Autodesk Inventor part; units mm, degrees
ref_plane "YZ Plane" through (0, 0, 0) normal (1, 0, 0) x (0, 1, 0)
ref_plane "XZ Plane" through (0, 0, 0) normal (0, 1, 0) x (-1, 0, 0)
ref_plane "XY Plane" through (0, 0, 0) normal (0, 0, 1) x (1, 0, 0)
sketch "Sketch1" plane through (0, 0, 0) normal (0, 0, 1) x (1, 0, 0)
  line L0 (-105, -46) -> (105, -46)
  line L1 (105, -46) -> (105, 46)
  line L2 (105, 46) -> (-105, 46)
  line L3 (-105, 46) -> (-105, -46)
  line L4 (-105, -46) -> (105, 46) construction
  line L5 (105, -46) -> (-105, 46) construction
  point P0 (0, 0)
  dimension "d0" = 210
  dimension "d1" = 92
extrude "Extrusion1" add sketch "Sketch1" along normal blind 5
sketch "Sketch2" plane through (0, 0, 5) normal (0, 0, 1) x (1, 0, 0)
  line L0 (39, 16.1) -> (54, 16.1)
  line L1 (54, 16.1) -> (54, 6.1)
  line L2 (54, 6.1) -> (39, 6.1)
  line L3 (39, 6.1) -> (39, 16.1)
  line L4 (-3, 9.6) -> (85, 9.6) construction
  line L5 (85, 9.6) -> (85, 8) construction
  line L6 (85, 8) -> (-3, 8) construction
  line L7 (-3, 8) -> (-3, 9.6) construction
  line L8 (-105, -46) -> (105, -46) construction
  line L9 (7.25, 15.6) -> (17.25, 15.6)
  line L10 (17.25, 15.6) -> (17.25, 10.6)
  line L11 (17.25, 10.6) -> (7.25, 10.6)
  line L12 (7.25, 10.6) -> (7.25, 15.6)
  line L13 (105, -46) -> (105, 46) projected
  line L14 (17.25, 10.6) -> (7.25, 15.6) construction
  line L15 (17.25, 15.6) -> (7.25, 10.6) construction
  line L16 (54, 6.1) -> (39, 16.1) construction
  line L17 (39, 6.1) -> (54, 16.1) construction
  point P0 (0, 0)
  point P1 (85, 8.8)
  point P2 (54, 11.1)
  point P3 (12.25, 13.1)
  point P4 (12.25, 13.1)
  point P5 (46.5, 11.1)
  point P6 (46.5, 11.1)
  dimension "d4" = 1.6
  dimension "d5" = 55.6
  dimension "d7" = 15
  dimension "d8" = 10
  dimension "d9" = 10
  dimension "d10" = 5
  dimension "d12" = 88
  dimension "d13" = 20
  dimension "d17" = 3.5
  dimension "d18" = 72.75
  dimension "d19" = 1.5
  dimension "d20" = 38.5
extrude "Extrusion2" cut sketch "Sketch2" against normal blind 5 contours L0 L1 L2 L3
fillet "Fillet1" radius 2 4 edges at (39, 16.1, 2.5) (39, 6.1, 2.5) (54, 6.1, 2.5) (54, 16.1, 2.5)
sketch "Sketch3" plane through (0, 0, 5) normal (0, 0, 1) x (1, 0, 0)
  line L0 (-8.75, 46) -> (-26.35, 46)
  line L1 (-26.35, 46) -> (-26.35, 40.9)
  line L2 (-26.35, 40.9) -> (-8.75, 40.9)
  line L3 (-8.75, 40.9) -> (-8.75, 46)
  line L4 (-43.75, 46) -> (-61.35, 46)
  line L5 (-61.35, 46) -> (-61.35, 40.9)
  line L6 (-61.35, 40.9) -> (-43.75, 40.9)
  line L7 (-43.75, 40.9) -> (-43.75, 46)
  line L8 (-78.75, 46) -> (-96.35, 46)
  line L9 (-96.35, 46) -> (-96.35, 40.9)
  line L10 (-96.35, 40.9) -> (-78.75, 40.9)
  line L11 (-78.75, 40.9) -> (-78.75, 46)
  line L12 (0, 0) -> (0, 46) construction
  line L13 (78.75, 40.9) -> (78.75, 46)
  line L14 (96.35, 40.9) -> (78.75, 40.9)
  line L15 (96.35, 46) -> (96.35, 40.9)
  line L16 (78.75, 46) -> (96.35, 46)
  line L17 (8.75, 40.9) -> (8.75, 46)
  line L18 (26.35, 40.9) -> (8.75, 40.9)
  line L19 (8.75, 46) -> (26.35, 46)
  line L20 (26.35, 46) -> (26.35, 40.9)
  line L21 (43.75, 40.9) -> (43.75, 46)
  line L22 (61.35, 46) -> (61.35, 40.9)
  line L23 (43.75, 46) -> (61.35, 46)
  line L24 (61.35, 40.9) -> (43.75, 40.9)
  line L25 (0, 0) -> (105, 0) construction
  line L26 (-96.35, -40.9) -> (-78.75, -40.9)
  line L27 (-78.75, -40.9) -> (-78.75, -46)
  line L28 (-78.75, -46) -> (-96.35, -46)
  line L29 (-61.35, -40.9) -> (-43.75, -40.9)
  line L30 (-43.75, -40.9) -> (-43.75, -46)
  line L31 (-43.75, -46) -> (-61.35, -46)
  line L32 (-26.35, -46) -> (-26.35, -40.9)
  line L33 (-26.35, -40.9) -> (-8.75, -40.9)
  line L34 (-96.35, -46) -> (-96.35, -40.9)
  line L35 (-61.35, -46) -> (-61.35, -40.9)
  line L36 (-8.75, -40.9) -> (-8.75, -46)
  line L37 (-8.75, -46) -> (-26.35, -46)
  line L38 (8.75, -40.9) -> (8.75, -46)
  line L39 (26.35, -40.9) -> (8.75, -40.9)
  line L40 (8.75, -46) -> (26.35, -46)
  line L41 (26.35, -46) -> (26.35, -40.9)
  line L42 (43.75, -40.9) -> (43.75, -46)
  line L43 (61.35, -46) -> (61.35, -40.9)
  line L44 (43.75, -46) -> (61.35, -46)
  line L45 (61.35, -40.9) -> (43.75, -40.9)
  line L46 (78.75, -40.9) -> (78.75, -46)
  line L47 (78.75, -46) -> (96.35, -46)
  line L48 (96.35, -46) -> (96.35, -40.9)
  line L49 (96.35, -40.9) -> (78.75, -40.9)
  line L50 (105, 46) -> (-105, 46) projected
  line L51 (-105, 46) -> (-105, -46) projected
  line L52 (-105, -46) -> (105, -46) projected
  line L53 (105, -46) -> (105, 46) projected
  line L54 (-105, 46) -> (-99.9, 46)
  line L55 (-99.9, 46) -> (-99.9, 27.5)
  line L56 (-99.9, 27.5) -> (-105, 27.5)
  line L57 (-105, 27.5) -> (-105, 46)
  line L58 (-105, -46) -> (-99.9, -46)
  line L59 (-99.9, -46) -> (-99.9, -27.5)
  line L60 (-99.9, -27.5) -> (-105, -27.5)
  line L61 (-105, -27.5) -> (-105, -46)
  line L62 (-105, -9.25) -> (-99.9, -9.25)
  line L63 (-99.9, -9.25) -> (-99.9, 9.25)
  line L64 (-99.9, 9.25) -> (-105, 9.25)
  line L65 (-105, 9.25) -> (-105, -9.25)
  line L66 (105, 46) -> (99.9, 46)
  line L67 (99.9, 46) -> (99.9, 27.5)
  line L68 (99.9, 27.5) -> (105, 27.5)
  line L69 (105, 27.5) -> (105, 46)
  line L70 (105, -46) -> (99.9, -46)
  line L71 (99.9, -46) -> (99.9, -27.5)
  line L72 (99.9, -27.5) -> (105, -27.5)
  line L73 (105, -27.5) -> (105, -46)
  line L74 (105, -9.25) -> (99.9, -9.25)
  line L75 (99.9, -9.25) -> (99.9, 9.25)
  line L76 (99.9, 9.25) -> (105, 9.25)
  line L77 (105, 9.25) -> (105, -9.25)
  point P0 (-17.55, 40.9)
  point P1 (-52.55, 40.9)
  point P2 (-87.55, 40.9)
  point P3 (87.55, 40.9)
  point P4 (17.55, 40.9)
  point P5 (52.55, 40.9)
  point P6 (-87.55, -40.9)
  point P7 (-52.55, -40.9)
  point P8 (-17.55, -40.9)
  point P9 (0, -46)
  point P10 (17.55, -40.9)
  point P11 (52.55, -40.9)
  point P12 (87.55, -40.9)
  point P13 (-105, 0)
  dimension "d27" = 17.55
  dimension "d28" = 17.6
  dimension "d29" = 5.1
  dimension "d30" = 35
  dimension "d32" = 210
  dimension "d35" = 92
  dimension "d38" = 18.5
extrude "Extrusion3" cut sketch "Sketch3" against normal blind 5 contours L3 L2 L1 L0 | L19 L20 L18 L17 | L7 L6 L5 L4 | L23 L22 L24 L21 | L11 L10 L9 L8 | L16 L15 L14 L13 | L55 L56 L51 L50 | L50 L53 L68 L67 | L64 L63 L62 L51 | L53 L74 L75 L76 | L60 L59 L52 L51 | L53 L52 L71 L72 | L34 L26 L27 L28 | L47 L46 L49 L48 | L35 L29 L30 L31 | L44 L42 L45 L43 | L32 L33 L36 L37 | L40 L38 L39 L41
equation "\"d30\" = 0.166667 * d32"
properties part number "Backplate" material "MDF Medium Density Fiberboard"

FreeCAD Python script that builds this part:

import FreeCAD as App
import Part
import Sketcher
from FreeCAD import Vector
Q = App.Units.Quantity


def edges_at(feature, points):
    """Names of the edges that pass closest to the given points."""
    edges = feature.Shape.Edges
    near = lambda p: min(range(len(edges)), key=lambda i: edges[i].distToShape(Part.Vertex(*p))[0])
    return sorted({f"Edge{near(p) + 1}" for p in points})

doc = App.newDocument("Part")
body = doc.addObject("PartDesign::Body", "Body")

sketch1 = doc.addObject("Sketcher::SketchObject", "Sketch")
body.addObject(sketch1)
sketch1.AttachmentSupport = (doc.XY_Plane, [""])
sketch1.MapMode = "FlatFace"
sketch1.addGeometry([
    Part.LineSegment(Vector(-105, 46, 0), Vector(-105, -46, 0)),
    Part.LineSegment(Vector(-105, -46, 0), Vector(105, -46, 0)),
    Part.LineSegment(Vector(105, -46, 0), Vector(105, 46, 0)),
    Part.LineSegment(Vector(105, 46, 0), Vector(-105, 46, 0)),
], False)
sketch1.addConstraint([
    Sketcher.Constraint("Coincident", 0, 2, 1, 1),
    Sketcher.Constraint("Coincident", 1, 2, 2, 1),
    Sketcher.Constraint("Coincident", 2, 2, 3, 1),
    Sketcher.Constraint("Coincident", 3, 2, 0, 1),
    Sketcher.Constraint("Vertical", 0),
    Sketcher.Constraint("Horizontal", 1),
    Sketcher.Constraint("Vertical", 2),
    Sketcher.Constraint("Horizontal", 3),
    Sketcher.Constraint("Symmetric", 0, 2, 2, 2, -1, 1),
    Sketcher.Constraint("DistanceX", 1, 1, 1, 2, Q("210 mm")),
    Sketcher.Constraint("DistanceY", 0, 2, 0, 1, Q("92 mm")),
])
pad1 = doc.addObject("PartDesign::Pad", "Pad")
body.addObject(pad1)
pad1.Profile = sketch1
pad1.Length = 5

sketch2 = doc.addObject("Sketcher::SketchObject", "Sketch001")
body.addObject(sketch2)
sketch2.AttachmentSupport = (doc.XY_Plane, [""])
sketch2.MapMode = "FlatFace"
sketch2.AttachmentOffset = App.Placement(Vector(0, 0, 5), App.Rotation())
sketch2.addGeometry([
    Part.LineSegment(Vector(54, 16.1, 0), Vector(39, 16.1, 0)),
    Part.LineSegment(Vector(39, 16.1, 0), Vector(39, 6.1, 0)),
    Part.LineSegment(Vector(39, 6.1, 0), Vector(54, 6.1, 0)),
    Part.LineSegment(Vector(54, 6.1, 0), Vector(54, 16.1, 0)),
], False)
sketch2.addConstraint([
    Sketcher.Constraint("Coincident", 0, 2, 1, 1),
    Sketcher.Constraint("Coincident", 1, 2, 2, 1),
    Sketcher.Constraint("Coincident", 2, 2, 3, 1),
    Sketcher.Constraint("Coincident", 3, 2, 0, 1),
    Sketcher.Constraint("Horizontal", 0),
    Sketcher.Constraint("Vertical", 1),
    Sketcher.Constraint("Horizontal", 2),
    Sketcher.Constraint("Vertical", 3),
    Sketcher.Constraint("DistanceX", 0, 2, 0, 1, Q("15 mm")),
    Sketcher.Constraint("DistanceY", 1, 2, 1, 1, Q("10 mm")),
    Sketcher.Constraint("DistanceX", -1, 1, 0, 2, Q("39 mm")),
    Sketcher.Constraint("DistanceY", -1, 1, 0, 2, Q("16.1 mm")),
])
pocket1 = doc.addObject("PartDesign::Pocket", "Pocket")
body.addObject(pocket1)
pocket1.Profile = sketch2
pocket1.Length = 5
doc.recompute()

fillet = doc.addObject("PartDesign::Fillet", "Fillet")
body.addObject(fillet)
fillet.Base = (pocket1, edges_at(pocket1, [
    (39, 16.1, 2.5),
    (39, 6.1, 2.5),
    (54, 6.1, 2.5),
    (54, 16.1, 2.5),
]))
fillet.Radius = 2

sketch3 = doc.addObject("Sketcher::SketchObject", "Sketch002")
body.addObject(sketch3)
sketch3.AttachmentSupport = (doc.XY_Plane, [""])
sketch3.MapMode = "FlatFace"
sketch3.AttachmentOffset = App.Placement(Vector(0, 0, 5), App.Rotation())
sketch3.addGeometry([
    Part.LineSegment(Vector(-8.75, 40.9, 0), Vector(-8.75, 46, 0)),
    Part.LineSegment(Vector(-8.75, 46, 0), Vector(-26.35, 46, 0)),
    Part.LineSegment(Vector(-26.35, 46, 0), Vector(-26.35, 40.9, 0)),
    Part.LineSegment(Vector(-26.35, 40.9, 0), Vector(-8.75, 40.9, 0)),
    Part.LineSegment(Vector(26.35, 46, 0), Vector(8.75, 46, 0)),
    Part.LineSegment(Vector(8.75, 46, 0), Vector(8.75, 40.9, 0)),
    Part.LineSegment(Vector(8.75, 40.9, 0), Vector(26.35, 40.9, 0)),
    Part.LineSegment(Vector(26.35, 40.9, 0), Vector(26.35, 46, 0)),
    Part.LineSegment(Vector(-43.75, 40.9, 0), Vector(-43.75, 46, 0)),
    Part.LineSegment(Vector(-43.75, 46, 0), Vector(-61.35, 46, 0)),
    Part.LineSegment(Vector(-61.35, 46, 0), Vector(-61.35, 40.9, 0)),
    Part.LineSegment(Vector(-61.35, 40.9, 0), Vector(-43.75, 40.9, 0)),
    Part.LineSegment(Vector(61.35, 46, 0), Vector(43.75, 46, 0)),
    Part.LineSegment(Vector(43.75, 46, 0), Vector(43.75, 40.9, 0)),
    Part.LineSegment(Vector(43.75, 40.9, 0), Vector(61.35, 40.9, 0)),
    Part.LineSegment(Vector(61.35, 40.9, 0), Vector(61.35, 46, 0)),
    Part.LineSegment(Vector(-78.75, 40.9, 0), Vector(-78.75, 46, 0)),
    Part.LineSegment(Vector(-78.75, 46, 0), Vector(-96.35, 46, 0)),
    Part.LineSegment(Vector(-96.35, 46, 0), Vector(-96.35, 40.9, 0)),
    Part.LineSegment(Vector(-96.35, 40.9, 0), Vector(-78.75, 40.9, 0)),
    Part.LineSegment(Vector(96.35, 46, 0), Vector(78.75, 46, 0)),
    Part.LineSegment(Vector(78.75, 46, 0), Vector(78.75, 40.9, 0)),
    Part.LineSegment(Vector(78.75, 40.9, 0), Vector(96.35, 40.9, 0)),
    Part.LineSegment(Vector(96.35, 40.9, 0), Vector(96.35, 46, 0)),
    Part.LineSegment(Vector(-99.9, 27.5, 0), Vector(-99.9, 46, 0)),
    Part.LineSegment(Vector(-99.9, 46, 0), Vector(-105, 46, 0)),
    Part.LineSegment(Vector(-105, 46, 0), Vector(-105, 27.5, 0)),
    Part.LineSegment(Vector(-105, 27.5, 0), Vector(-99.9, 27.5, 0)),
    Part.LineSegment(Vector(105, 46, 0), Vector(99.9, 46, 0)),
    Part.LineSegment(Vector(99.9, 46, 0), Vector(99.9, 27.5, 0)),
    Part.LineSegment(Vector(99.9, 27.5, 0), Vector(105, 27.5, 0)),
    Part.LineSegment(Vector(105, 27.5, 0), Vector(105, 46, 0)),
    Part.LineSegment(Vector(-99.9, 9.25, 0), Vector(-105, 9.25, 0)),
    Part.LineSegment(Vector(-105, 9.25, 0), Vector(-105, -9.25, 0)),
    Part.LineSegment(Vector(-105, -9.25, 0), Vector(-99.9, -9.25, 0)),
    Part.LineSegment(Vector(-99.9, -9.25, 0), Vector(-99.9, 9.25, 0)),
    Part.LineSegment(Vector(105, -9.25, 0), Vector(105, 9.25, 0)),
    Part.LineSegment(Vector(105, 9.25, 0), Vector(99.9, 9.25, 0)),
    Part.LineSegment(Vector(99.9, 9.25, 0), Vector(99.9, -9.25, 0)),
    Part.LineSegment(Vector(99.9, -9.25, 0), Vector(105, -9.25, 0)),
    Part.LineSegment(Vector(-99.9, -27.5, 0), Vector(-105, -27.5, 0)),
    Part.LineSegment(Vector(-105, -27.5, 0), Vector(-105, -46, 0)),
    Part.LineSegment(Vector(-105, -46, 0), Vector(-99.9, -46, 0)),
    Part.LineSegment(Vector(-99.9, -46, 0), Vector(-99.9, -27.5, 0)),
    Part.LineSegment(Vector(105, -46, 0), Vector(105, -27.5, 0)),
    Part.LineSegment(Vector(105, -27.5, 0), Vector(99.9, -27.5, 0)),
    Part.LineSegment(Vector(99.9, -27.5, 0), Vector(99.9, -46, 0)),
    Part.LineSegment(Vector(99.9, -46, 0), Vector(105, -46, 0)),
    Part.LineSegment(Vector(-96.35, -40.9, 0), Vector(-96.35, -46, 0)),
    Part.LineSegment(Vector(-96.35, -46, 0), Vector(-78.75, -46, 0)),
    Part.LineSegment(Vector(-78.75, -46, 0), Vector(-78.75, -40.9, 0)),
    Part.LineSegment(Vector(-78.75, -40.9, 0), Vector(-96.35, -40.9, 0)),
    Part.LineSegment(Vector(78.75, -46, 0), Vector(96.35, -46, 0)),
    Part.LineSegment(Vector(96.35, -46, 0), Vector(96.35, -40.9, 0)),
    Part.LineSegment(Vector(96.35, -40.9, 0), Vector(78.75, -40.9, 0)),
    Part.LineSegment(Vector(78.75, -40.9, 0), Vector(78.75, -46, 0)),
    Part.LineSegment(Vector(-61.35, -40.9, 0), Vector(-61.35, -46, 0)),
    Part.LineSegment(Vector(-61.35, -46, 0), Vector(-43.75, -46, 0)),
    Part.LineSegment(Vector(-43.75, -46, 0), Vector(-43.75, -40.9, 0)),
    Part.LineSegment(Vector(-43.75, -40.9, 0), Vector(-61.35, -40.9, 0)),
    Part.LineSegment(Vector(43.75, -46, 0), Vector(61.35, -46, 0)),
    Part.LineSegment(Vector(61.35, -46, 0), Vector(61.35, -40.9, 0)),
    Part.LineSegment(Vector(61.35, -40.9, 0), Vector(43.75, -40.9, 0)),
    Part.LineSegment(Vector(43.75, -40.9, 0), Vector(43.75, -46, 0)),
    Part.LineSegment(Vector(-26.35, -40.9, 0), Vector(-26.35, -46, 0)),
    Part.LineSegment(Vector(-26.35, -46, 0), Vector(-8.75, -46, 0)),
    Part.LineSegment(Vector(-8.75, -46, 0), Vector(-8.75, -40.9, 0)),
    Part.LineSegment(Vector(-8.75, -40.9, 0), Vector(-26.35, -40.9, 0)),
    Part.LineSegment(Vector(8.75, -46, 0), Vector(26.35, -46, 0)),
    Part.LineSegment(Vector(26.35, -46, 0), Vector(26.35, -40.9, 0)),
    Part.LineSegment(Vector(26.35, -40.9, 0), Vector(8.75, -40.9, 0)),
    Part.LineSegment(Vector(8.75, -40.9, 0), Vector(8.75, -46, 0)),
], False)
sketch3.addConstraint([
    Sketcher.Constraint("Coincident", 0, 2, 1, 1),
    Sketcher.Constraint("Coincident", 1, 2, 2, 1),
    Sketcher.Constraint("Coincident", 2, 2, 3, 1),
    Sketcher.Constraint("Coincident", 3, 2, 0, 1),
    Sketcher.Constraint("Coincident", 4, 2, 5, 1),
    Sketcher.Constraint("Coincident", 5, 2, 6, 1),
    Sketcher.Constraint("Coincident", 6, 2, 7, 1),
    Sketcher.Constraint("Coincident", 7, 2, 4, 1),
    Sketcher.Constraint("Coincident", 8, 2, 9, 1),
    Sketcher.Constraint("Coincident", 9, 2, 10, 1),
    Sketcher.Constraint("Coincident", 10, 2, 11, 1),
    Sketcher.Constraint("Coincident", 11, 2, 8, 1),
    Sketcher.Constraint("Coincident", 12, 2, 13, 1),
    Sketcher.Constraint("Coincident", 13, 2, 14, 1),
    Sketcher.Constraint("Coincident", 14, 2, 15, 1),
    Sketcher.Constraint("Coincident", 15, 2, 12, 1),
    Sketcher.Constraint("Coincident", 16, 2, 17, 1),
    Sketcher.Constraint("Coincident", 17, 2, 18, 1),
    Sketcher.Constraint("Coincident", 18, 2, 19, 1),
    Sketcher.Constraint("Coincident", 19, 2, 16, 1),
    Sketcher.Constraint("Coincident", 20, 2, 21, 1),
    Sketcher.Constraint("Coincident", 21, 2, 22, 1),
    Sketcher.Constraint("Coincident", 22, 2, 23, 1),
    Sketcher.Constraint("Coincident", 23, 2, 20, 1),
    Sketcher.Constraint("Coincident", 24, 2, 25, 1),
    Sketcher.Constraint("Coincident", 25, 2, 26, 1),
    Sketcher.Constraint("Coincident", 26, 2, 27, 1),
    Sketcher.Constraint("Coincident", 27, 2, 24, 1),
    Sketcher.Constraint("Coincident", 28, 2, 29, 1),
    Sketcher.Constraint("Coincident", 29, 2, 30, 1),
    Sketcher.Constraint("Coincident", 30, 2, 31, 1),
    Sketcher.Constraint("Coincident", 31, 2, 28, 1),
    Sketcher.Constraint("Coincident", 32, 2, 33, 1),
    Sketcher.Constraint("Coincident", 33, 2, 34, 1),
    Sketcher.Constraint("Coincident", 34, 2, 35, 1),
    Sketcher.Constraint("Coincident", 35, 2, 32, 1),
    Sketcher.Constraint("Coincident", 36, 2, 37, 1),
    Sketcher.Constraint("Coincident", 37, 2, 38, 1),
    Sketcher.Constraint("Coincident", 38, 2, 39, 1),
    Sketcher.Constraint("Coincident", 39, 2, 36, 1),
    Sketcher.Constraint("Coincident", 40, 2, 41, 1),
    Sketcher.Constraint("Coincident", 41, 2, 42, 1),
    Sketcher.Constraint("Coincident", 42, 2, 43, 1),
    Sketcher.Constraint("Coincident", 43, 2, 40, 1),
    Sketcher.Constraint("Coincident", 44, 2, 45, 1),
    Sketcher.Constraint("Coincident", 45, 2, 46, 1),
    Sketcher.Constraint("Coincident", 46, 2, 47, 1),
    Sketcher.Constraint("Coincident", 47, 2, 44, 1),
    Sketcher.Constraint("Coincident", 48, 2, 49, 1),
    Sketcher.Constraint("Coincident", 49, 2, 50, 1),
    Sketcher.Constraint("Coincident", 50, 2, 51, 1),
    Sketcher.Constraint("Coincident", 51, 2, 48, 1),
    Sketcher.Constraint("Coincident", 52, 2, 53, 1),
    Sketcher.Constraint("Coincident", 53, 2, 54, 1),
    Sketcher.Constraint("Coincident", 54, 2, 55, 1),
    Sketcher.Constraint("Coincident", 55, 2, 52, 1),
    Sketcher.Constraint("Coincident", 56, 2, 57, 1),
    Sketcher.Constraint("Coincident", 57, 2, 58, 1),
    Sketcher.Constraint("Coincident", 58, 2, 59, 1),
    Sketcher.Constraint("Coincident", 59, 2, 56, 1),
    Sketcher.Constraint("Coincident", 60, 2, 61, 1),
    Sketcher.Constraint("Coincident", 61, 2, 62, 1),
    Sketcher.Constraint("Coincident", 62, 2, 63, 1),
    Sketcher.Constraint("Coincident", 63, 2, 60, 1),
    Sketcher.Constraint("Coincident", 64, 2, 65, 1),
    Sketcher.Constraint("Coincident", 65, 2, 66, 1),
    Sketcher.Constraint("Coincident", 66, 2, 67, 1),
    Sketcher.Constraint("Coincident", 67, 2, 64, 1),
    Sketcher.Constraint("Coincident", 68, 2, 69, 1),
    Sketcher.Constraint("Coincident", 69, 2, 70, 1),
    Sketcher.Constraint("Coincident", 70, 2, 71, 1),
    Sketcher.Constraint("Coincident", 71, 2, 68, 1),
    Sketcher.Constraint("Vertical", 0),
    Sketcher.Constraint("Horizontal", 1),
    Sketcher.Constraint("Vertical", 2),
    Sketcher.Constraint("Horizontal", 3),
    Sketcher.Constraint("Horizontal", 4),
    Sketcher.Constraint("Vertical", 5),
    Sketcher.Constraint("Horizontal", 6),
    Sketcher.Constraint("Vertical", 7),
    Sketcher.Constraint("Vertical", 8),
    Sketcher.Constraint("Horizontal", 9),
    Sketcher.Constraint("Vertical", 10),
    Sketcher.Constraint("Horizontal", 11),
    Sketcher.Constraint("Horizontal", 12),
    Sketcher.Constraint("Vertical", 13),
    Sketcher.Constraint("Horizontal", 14),
    Sketcher.Constraint("Vertical", 15),
    Sketcher.Constraint("Vertical", 16),
    Sketcher.Constraint("Horizontal", 17),
    Sketcher.Constraint("Vertical", 18),
    Sketcher.Constraint("Horizontal", 19),
    Sketcher.Constraint("Horizontal", 20),
    Sketcher.Constraint("Vertical", 21),
    Sketcher.Constraint("Horizontal", 22),
    Sketcher.Constraint("Vertical", 23),
    Sketcher.Constraint("Vertical", 24),
    Sketcher.Constraint("Horizontal", 25),
    Sketcher.Constraint("Vertical", 26),
    Sketcher.Constraint("Horizontal", 27),
    Sketcher.Constraint("Horizontal", 28),
    Sketcher.Constraint("Vertical", 29),
    Sketcher.Constraint("Horizontal", 30),
    Sketcher.Constraint("Vertical", 31),
    Sketcher.Constraint("Horizontal", 32),
    Sketcher.Constraint("Vertical", 33),
    Sketcher.Constraint("Horizontal", 34),
    Sketcher.Constraint("Vertical", 35),
    Sketcher.Constraint("Vertical", 36),
    Sketcher.Constraint("Horizontal", 37),
    Sketcher.Constraint("Vertical", 38),
    Sketcher.Constraint("Horizontal", 39),
    Sketcher.Constraint("Horizontal", 40),
    Sketcher.Constraint("Vertical", 41),
    Sketcher.Constraint("Horizontal", 42),
    Sketcher.Constraint("Vertical", 43),
    Sketcher.Constraint("Vertical", 44),
    Sketcher.Constraint("Horizontal", 45),
    Sketcher.Constraint("Vertical", 46),
    Sketcher.Constraint("Horizontal", 47),
    Sketcher.Constraint("Vertical", 48),
    Sketcher.Constraint("Horizontal", 49),
    Sketcher.Constraint("Vertical", 50),
    Sketcher.Constraint("Horizontal", 51),
    Sketcher.Constraint("Horizontal", 52),
    Sketcher.Constraint("Vertical", 53),
    Sketcher.Constraint("Horizontal", 54),
    Sketcher.Constraint("Vertical", 55),
    Sketcher.Constraint("Vertical", 56),
    Sketcher.Constraint("Horizontal", 57),
    Sketcher.Constraint("Vertical", 58),
    Sketcher.Constraint("Horizontal", 59),
    Sketcher.Constraint("Horizontal", 60),
    Sketcher.Constraint("Vertical", 61),
    Sketcher.Constraint("Horizontal", 62),
    Sketcher.Constraint("Vertical", 63),
    Sketcher.Constraint("Vertical", 64),
    Sketcher.Constraint("Horizontal", 65),
    Sketcher.Constraint("Vertical", 66),
    Sketcher.Constraint("Horizontal", 67),
    Sketcher.Constraint("Horizontal", 68),
    Sketcher.Constraint("Vertical", 69),
    Sketcher.Constraint("Horizontal", 70),
    Sketcher.Constraint("Vertical", 71),
    Sketcher.Constraint("Symmetric", 33, 2, 36, 2, -1, 1),
    Sketcher.Constraint("Symmetric", 35, 2, 38, 2, -1, 1),
    Sketcher.Constraint("Symmetric", 30, 2, 40, 2, -1, 1),
    Sketcher.Constraint("Symmetric", 28, 2, 42, 2, -1, 1),
    Sketcher.Constraint("Symmetric", 26, 2, 44, 2, -1, 1),
    Sketcher.Constraint("Symmetric", 24, 2, 46, 2, -1, 1),
    Sketcher.Constraint("Symmetric", 23, 2, 48, 2, -1, 1),
    Sketcher.Constraint("Symmetric", 21, 2, 50, 2, -1, 1),
    Sketcher.Constraint("Symmetric", 17, 2, 52, 2, -1, 1),
    Sketcher.Constraint("Symmetric", 19, 2, 54, 2, -1, 1),
    Sketcher.Constraint("Symmetric", 15, 2, 56, 2, -1, 1),
    Sketcher.Constraint("Symmetric", 13, 2, 58, 2, -1, 1),
    Sketcher.Constraint("Symmetric", 9, 2, 60, 2, -1, 1),
    Sketcher.Constraint("Symmetric", 11, 2, 62, 2, -1, 1),
    Sketcher.Constraint("Symmetric", 7, 2, 64, 2, -1, 1),
    Sketcher.Constraint("Symmetric", 5, 2, 66, 2, -1, 1),
    Sketcher.Constraint("Symmetric", 1, 2, 68, 2, -1, 1),
    Sketcher.Constraint("Symmetric", 3, 2, 70, 2, -1, 1),
    Sketcher.Constraint("Symmetric", 0, 2, 4, 2, -2),
    Sketcher.Constraint("Symmetric", 2, 2, 6, 2, -2),
    Sketcher.Constraint("Symmetric", 8, 2, 12, 2, -2),
    Sketcher.Constraint("Symmetric", 10, 2, 14, 2, -2),
    Sketcher.Constraint("Symmetric", 16, 2, 20, 2, -2),
    Sketcher.Constraint("Symmetric", 18, 2, 22, 2, -2),
    Sketcher.Constraint("Symmetric", 24, 2, 28, 2, -2),
    Sketcher.Constraint("Symmetric", 26, 2, 30, 2, -2),
    Sketcher.Constraint("Horizontal", 7, 2, 8, 2),
    Sketcher.Constraint("Horizontal", 6, 2, 10, 2),
    Sketcher.Constraint("Horizontal", 15, 2, 16, 2),
    Sketcher.Constraint("Horizontal", 14, 2, 18, 2),
    Sketcher.Constraint("Horizontal", 23, 2, 24, 2),
    Sketcher.Constraint("Horizontal", 35, 2, 36, 2),
    Sketcher.Constraint("Vertical", 26, 2, 32, 2),
    Sketcher.Constraint("Vertical", 27, 2, 34, 2),
    Sketcher.Constraint("Equal", 6, 9),
    Sketcher.Constraint("Equal", 14, 17),
    Sketcher.Constraint("Equal", 47, 0),
    Sketcher.Constraint("Equal", 31, 33),
    Sketcher.Constraint("DistanceX", 1, 2, 1, 1, Q("17.6 mm")),
    Sketcher.Constraint("DistanceX", 25, 2, 25, 1, Q("5.1 mm")),
    Sketcher.Constraint("DistanceY", 24, 1, 24, 2, Q("18.5 mm")),
    Sketcher.Constraint("DistanceY", -1, 1, 0, 2, Q("46 mm")),
    Sketcher.Constraint("DistanceX", 25, 2, -1, 1, Q("105 mm")),
    Sketcher.Constraint("DistanceX", 0, 2, -1, 1, Q("8.75 mm")),
    Sketcher.Constraint("DistanceX", 8, 2, -1, 1, Q("43.75 mm")),
    Sketcher.Constraint("DistanceX", 16, 2, -1, 1, Q("78.75 mm")),
])
pocket2 = doc.addObject("PartDesign::Pocket", "Pocket001")
body.addObject(pocket2)
pocket2.Profile = sketch3
pocket2.Length = 5

doc.recompute()
